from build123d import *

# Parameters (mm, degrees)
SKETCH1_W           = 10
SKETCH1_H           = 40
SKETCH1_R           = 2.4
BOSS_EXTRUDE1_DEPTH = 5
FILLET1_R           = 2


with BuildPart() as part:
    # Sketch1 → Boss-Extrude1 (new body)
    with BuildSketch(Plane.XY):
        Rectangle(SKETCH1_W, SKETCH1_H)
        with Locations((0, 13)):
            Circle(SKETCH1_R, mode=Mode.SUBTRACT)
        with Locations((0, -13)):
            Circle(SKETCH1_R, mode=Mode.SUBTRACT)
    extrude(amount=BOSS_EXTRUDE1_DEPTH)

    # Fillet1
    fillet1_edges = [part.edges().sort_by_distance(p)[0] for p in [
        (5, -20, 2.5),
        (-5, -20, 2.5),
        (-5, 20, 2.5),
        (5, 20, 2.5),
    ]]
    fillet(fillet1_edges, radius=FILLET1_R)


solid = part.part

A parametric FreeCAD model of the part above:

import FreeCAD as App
import Part
import Sketcher

V = App.Vector


def edges_at(feature, points):
    """Names of the edges that pass closest to the given points."""
    edges = feature.Shape.Edges
    near = lambda p: min(range(len(edges)), key=lambda i: edges[i].distToShape(Part.Vertex(*p))[0])
    return sorted({f"Edge{near(p) + 1}" for p in points})

doc = App.newDocument("Part")
body = doc.addObject("PartDesign::Body", "Body")

# Sketch on XY plane
sketch1 = body.newObject("Sketcher::SketchObject", "Sketch")
sketch1.AttachmentSupport = (doc.getObject("XY_Plane"), [""])
sketch1.MapMode = "FlatFace"
sketch1.addGeometry(Part.LineSegment(V(-5, 20, 0), V(-5, -20, 0)), False)
sketch1.addGeometry(Part.LineSegment(V(-5, -20, 0), V(5, -20, 0)), False)
sketch1.addGeometry(Part.LineSegment(V(5, -20, 0), V(5, 20, 0)), False)
sketch1.addGeometry(Part.LineSegment(V(5, 20, 0), V(-5, 20, 0)), False)
sketch1.addGeometry(Part.Circle(V(0, -13, 0), V(0, 0, 1), 2.4), False)
sketch1.addGeometry(Part.Circle(V(0, 13, 0), V(0, 0, 1), 2.4), False)
sketch1.addConstraint(Sketcher.Constraint("Coincident", 0, 2, 1, 1))
sketch1.addConstraint(Sketcher.Constraint("Coincident", 1, 2, 2, 1))
sketch1.addConstraint(Sketcher.Constraint("Coincident", 2, 2, 3, 1))
sketch1.addConstraint(Sketcher.Constraint("Coincident", 3, 2, 0, 1))
sketch1.addConstraint(Sketcher.Constraint("Vertical", 0))
sketch1.addConstraint(Sketcher.Constraint("Horizontal", 1))
sketch1.addConstraint(Sketcher.Constraint("Vertical", 2))
sketch1.addConstraint(Sketcher.Constraint("Horizontal", 3))
sketch1.addConstraint(Sketcher.Constraint("Equal", 4, 5))
sketch1.addConstraint(Sketcher.Constraint("Symmetric", 4, 3, 5, 3, -1, 1))
sketch1.addConstraint(Sketcher.Constraint("Symmetric", 0, 2, 2, 2, -1, 1))
sketch1.addConstraint(Sketcher.Constraint("PointOnObject", 4, 3, -2))
sketch1.addConstraint(Sketcher.Constraint("Diameter", 4, 4.8))
sketch1.addConstraint(Sketcher.Constraint("DistanceX", 1, 1, 1, 2, 10.0))
sketch1.addConstraint(Sketcher.Constraint("DistanceY", 0, 2, 0, 1, 40.0))
sketch1.addConstraint(Sketcher.Constraint("DistanceY", 4, 3, -1, 1, 13.0))
pad1 = body.newObject("PartDesign::Pad", "Pad")
pad1.Profile = sketch1
pad1.Length = 5
doc.recompute()

fillet = body.newObject("PartDesign::Fillet", "Fillet")
fillet.Base = (pad1, edges_at(pad1, [
    (5, -20, 2.5),
    (-5, -20, 2.5),
    (-5, 20, 2.5),
    (5, 20, 2.5),
]))
fillet.Radius = 2

doc.recompute()
